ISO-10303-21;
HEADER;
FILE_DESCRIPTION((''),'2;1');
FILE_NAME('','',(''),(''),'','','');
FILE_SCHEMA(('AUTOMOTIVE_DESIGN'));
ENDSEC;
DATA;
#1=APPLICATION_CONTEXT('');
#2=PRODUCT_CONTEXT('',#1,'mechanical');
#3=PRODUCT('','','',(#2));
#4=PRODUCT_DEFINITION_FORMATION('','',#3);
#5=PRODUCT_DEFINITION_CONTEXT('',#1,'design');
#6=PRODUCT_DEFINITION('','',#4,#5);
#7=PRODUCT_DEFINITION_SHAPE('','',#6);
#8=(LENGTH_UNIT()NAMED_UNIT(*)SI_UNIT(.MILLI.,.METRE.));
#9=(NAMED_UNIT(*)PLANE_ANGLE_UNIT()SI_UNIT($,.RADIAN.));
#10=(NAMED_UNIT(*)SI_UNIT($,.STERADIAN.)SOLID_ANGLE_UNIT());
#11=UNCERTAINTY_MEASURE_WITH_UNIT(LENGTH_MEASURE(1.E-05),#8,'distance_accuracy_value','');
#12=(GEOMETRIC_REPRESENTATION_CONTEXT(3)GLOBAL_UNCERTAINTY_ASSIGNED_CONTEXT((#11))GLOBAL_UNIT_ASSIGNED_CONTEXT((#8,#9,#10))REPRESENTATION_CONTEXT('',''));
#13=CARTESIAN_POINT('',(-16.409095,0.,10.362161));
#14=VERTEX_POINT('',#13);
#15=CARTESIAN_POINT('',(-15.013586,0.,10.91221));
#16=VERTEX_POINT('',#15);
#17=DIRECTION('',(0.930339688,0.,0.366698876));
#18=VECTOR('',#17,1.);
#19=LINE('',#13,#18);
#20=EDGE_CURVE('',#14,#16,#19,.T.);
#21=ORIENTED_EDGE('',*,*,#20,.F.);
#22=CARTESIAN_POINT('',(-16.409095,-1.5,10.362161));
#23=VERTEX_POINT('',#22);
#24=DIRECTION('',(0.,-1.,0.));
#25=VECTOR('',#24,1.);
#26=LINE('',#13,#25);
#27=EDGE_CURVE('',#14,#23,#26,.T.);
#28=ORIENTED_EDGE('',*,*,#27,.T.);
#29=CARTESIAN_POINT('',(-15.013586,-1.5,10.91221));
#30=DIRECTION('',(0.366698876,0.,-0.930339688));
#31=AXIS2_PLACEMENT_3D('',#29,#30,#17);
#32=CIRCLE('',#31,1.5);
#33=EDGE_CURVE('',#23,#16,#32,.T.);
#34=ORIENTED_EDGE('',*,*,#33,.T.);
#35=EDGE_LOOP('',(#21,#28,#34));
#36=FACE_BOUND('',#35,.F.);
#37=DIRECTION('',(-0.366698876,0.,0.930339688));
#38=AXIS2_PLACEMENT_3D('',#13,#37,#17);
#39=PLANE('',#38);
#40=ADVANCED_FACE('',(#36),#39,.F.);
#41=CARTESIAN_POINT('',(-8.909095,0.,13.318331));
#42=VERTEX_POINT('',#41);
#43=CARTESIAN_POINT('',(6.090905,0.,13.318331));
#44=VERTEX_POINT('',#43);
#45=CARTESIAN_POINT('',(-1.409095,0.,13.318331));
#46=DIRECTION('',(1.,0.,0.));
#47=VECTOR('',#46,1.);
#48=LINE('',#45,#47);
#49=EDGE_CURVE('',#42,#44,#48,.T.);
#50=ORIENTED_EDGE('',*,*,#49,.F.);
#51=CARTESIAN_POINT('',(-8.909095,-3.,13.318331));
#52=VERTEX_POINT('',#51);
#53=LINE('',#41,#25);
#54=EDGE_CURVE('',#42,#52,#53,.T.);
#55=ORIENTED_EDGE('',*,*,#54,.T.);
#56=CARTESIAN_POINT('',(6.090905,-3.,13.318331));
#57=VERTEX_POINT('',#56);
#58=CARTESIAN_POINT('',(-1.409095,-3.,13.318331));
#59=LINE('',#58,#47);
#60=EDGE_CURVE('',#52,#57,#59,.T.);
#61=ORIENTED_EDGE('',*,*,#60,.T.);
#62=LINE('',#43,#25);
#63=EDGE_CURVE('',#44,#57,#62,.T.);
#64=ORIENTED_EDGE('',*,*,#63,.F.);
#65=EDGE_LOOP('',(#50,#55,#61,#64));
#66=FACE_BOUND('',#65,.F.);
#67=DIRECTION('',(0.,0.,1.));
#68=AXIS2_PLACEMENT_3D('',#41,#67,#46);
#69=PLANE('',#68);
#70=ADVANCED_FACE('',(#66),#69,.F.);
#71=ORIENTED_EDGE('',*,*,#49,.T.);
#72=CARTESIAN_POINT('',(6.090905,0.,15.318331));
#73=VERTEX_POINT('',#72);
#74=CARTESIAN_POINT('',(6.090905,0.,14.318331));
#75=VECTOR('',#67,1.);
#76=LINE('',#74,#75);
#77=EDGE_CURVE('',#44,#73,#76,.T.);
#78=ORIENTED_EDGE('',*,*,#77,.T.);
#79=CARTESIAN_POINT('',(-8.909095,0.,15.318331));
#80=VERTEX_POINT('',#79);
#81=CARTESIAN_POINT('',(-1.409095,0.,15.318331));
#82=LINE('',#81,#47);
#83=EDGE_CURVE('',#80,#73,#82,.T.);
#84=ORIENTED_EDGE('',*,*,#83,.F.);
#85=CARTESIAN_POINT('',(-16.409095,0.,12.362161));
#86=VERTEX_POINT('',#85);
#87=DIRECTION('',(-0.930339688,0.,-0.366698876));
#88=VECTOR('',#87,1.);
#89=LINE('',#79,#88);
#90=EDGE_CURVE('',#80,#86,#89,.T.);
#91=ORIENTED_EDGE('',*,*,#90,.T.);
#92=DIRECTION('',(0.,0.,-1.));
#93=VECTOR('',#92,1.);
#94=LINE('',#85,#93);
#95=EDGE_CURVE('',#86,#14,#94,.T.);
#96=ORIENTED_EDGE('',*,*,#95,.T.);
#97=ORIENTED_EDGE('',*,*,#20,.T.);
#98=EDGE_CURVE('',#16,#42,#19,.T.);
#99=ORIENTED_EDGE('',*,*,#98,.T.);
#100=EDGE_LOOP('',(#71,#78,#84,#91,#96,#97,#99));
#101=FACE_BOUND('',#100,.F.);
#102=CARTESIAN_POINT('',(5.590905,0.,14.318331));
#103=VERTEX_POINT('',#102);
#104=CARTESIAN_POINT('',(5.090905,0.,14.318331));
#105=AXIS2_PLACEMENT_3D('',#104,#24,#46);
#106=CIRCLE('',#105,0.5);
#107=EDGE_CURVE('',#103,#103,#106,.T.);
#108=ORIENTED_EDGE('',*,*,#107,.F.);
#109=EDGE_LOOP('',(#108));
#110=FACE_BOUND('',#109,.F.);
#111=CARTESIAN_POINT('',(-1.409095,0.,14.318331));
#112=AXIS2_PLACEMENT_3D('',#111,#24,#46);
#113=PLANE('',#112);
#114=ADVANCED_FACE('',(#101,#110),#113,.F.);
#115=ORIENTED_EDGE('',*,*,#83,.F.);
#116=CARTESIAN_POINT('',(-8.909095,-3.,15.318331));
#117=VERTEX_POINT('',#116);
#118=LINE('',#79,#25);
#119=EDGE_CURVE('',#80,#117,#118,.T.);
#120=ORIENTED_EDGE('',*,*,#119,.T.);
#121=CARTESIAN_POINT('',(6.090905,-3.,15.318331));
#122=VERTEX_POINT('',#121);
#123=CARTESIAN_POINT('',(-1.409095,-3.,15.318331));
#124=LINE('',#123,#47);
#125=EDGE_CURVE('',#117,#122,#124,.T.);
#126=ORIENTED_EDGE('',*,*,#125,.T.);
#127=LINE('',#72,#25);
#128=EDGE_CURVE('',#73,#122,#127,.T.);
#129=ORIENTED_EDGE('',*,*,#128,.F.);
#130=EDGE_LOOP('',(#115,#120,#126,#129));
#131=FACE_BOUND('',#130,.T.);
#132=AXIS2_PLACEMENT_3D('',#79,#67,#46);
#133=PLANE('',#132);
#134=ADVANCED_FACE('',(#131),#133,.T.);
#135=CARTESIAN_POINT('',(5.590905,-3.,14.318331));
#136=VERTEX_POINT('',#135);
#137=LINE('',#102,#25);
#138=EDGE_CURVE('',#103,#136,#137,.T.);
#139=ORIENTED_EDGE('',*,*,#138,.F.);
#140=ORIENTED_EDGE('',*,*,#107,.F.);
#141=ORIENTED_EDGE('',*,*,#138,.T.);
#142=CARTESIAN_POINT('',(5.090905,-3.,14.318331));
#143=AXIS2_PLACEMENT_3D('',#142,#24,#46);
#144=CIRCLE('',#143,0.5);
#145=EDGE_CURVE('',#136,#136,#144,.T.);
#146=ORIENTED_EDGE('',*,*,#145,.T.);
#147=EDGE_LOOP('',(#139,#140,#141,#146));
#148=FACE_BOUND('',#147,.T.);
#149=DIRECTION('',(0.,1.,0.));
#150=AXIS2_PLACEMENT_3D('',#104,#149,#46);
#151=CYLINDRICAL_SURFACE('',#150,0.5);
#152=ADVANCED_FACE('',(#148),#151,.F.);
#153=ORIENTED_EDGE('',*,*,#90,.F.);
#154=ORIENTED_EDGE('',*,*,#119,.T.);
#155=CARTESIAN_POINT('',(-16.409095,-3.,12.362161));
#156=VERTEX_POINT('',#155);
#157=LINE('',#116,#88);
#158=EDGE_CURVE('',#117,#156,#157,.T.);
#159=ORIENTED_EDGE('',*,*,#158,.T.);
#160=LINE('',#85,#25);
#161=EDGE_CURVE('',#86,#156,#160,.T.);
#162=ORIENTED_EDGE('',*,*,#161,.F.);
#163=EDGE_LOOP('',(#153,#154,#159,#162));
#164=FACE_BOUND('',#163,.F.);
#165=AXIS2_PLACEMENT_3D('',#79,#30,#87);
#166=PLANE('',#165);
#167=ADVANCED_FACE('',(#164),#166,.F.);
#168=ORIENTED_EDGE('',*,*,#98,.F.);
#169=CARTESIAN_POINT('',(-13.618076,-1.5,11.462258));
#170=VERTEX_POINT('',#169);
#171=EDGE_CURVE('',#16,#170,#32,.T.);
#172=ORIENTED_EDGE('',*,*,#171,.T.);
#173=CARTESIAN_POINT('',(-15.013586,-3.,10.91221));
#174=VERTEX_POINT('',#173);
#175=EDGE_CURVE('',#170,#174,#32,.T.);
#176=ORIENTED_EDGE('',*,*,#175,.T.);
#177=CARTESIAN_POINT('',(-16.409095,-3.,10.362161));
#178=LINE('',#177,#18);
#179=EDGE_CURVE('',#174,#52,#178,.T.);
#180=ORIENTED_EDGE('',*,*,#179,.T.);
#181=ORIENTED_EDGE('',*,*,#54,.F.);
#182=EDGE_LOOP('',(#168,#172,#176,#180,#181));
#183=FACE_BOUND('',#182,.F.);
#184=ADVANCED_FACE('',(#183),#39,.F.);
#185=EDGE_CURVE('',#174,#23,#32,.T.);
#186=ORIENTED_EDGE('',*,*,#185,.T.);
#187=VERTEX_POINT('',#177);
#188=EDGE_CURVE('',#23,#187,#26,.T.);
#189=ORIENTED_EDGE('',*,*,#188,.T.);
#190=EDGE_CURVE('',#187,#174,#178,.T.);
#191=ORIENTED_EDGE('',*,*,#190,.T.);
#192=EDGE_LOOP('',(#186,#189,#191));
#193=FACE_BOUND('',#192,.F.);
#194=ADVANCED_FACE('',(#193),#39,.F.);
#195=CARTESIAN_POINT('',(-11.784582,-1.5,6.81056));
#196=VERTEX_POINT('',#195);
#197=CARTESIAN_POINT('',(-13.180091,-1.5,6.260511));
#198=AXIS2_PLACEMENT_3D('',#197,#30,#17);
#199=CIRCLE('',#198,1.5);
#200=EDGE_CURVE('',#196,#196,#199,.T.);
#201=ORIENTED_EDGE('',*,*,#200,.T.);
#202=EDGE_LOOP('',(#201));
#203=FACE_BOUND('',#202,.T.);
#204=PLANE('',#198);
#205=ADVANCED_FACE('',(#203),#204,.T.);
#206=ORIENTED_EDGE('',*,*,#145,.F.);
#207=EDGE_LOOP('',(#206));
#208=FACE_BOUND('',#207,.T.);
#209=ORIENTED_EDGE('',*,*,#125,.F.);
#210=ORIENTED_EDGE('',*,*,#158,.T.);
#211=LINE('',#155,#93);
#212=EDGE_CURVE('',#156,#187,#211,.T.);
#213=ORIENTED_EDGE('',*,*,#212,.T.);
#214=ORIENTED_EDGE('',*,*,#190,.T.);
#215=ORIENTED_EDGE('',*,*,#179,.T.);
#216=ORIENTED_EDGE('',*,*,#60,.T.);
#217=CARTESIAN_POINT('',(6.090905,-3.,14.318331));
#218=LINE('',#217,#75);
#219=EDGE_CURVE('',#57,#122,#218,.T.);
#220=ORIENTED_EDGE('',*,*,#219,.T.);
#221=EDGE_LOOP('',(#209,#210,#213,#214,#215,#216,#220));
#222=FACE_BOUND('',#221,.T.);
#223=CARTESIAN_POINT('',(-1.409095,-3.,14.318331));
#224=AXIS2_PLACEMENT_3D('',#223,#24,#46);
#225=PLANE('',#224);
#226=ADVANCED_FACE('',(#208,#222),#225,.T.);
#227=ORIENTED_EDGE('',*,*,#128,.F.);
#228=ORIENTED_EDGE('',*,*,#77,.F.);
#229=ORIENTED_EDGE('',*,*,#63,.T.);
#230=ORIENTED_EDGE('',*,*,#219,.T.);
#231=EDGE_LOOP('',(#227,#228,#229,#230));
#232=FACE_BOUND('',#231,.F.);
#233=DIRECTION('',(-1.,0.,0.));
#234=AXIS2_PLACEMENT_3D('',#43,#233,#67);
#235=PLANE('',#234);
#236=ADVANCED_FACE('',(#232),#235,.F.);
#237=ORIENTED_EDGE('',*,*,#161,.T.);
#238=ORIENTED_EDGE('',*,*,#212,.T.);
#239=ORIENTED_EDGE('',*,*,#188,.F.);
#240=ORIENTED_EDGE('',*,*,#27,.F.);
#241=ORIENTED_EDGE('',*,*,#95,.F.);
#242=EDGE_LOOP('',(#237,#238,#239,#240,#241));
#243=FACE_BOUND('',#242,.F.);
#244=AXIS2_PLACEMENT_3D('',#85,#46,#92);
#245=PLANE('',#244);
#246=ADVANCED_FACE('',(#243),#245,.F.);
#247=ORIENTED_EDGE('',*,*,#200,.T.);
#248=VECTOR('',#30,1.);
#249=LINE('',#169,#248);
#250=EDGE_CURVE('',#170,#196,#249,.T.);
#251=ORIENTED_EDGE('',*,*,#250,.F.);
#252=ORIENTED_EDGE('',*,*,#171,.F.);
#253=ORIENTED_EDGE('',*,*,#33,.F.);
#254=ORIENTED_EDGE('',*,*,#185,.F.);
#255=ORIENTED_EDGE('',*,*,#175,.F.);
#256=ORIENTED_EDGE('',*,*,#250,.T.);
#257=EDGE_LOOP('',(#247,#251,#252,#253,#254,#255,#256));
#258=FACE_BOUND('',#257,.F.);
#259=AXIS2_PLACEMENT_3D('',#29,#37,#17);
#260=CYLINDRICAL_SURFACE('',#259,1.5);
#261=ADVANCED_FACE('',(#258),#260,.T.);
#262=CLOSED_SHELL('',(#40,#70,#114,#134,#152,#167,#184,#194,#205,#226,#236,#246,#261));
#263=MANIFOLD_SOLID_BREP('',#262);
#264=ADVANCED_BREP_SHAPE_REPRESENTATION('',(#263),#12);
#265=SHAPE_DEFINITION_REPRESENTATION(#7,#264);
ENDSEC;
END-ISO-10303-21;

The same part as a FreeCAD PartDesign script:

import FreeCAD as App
import Part
import Sketcher
from FreeCAD import Vector
Q = App.Units.Quantity

doc = App.newDocument("Part")
body = doc.addObject("PartDesign::Body", "Body")

# Sketch on XZ plane
sketch1 = doc.addObject("Sketcher::SketchObject", "Sketch")
body.addObject(sketch1)
sketch1.AttachmentSupport = (doc.XZ_Plane, [""])
sketch1.MapMode = "FlatFace"
sketch1.addGeometry(Part.LineSegment(Vector(-8.909095, 13.318331, 0), Vector(6.090905, 13.318331, 0)), False)
sketch1.addGeometry(Part.LineSegment(Vector(6.090905, 13.318331, 0), Vector(6.090905, 15.318331, 0)), False)
sketch1.addGeometry(Part.LineSegment(Vector(6.090905, 15.318331, 0), Vector(-8.909095, 15.318331, 0)), False)
sketch1.addGeometry(Part.LineSegment(Vector(-8.909095, 15.318331, 0), Vector(-16.409095, 12.362161, 0)), False)
sketch1.addGeometry(Part.LineSegment(Vector(-16.409095, 12.362161, 0), Vector(-16.409095, 10.362161, 0)), False)
sketch1.addGeometry(Part.LineSegment(Vector(-16.409095, 10.362161, 0), Vector(-8.909095, 13.318331, 0)), False)
sketch1.addGeometry(Part.Circle(Vector(5.090905, 14.318331, 0), Vector(0, 0, 1), 0.5), False)
sketch1.addConstraint(Sketcher.Constraint("Coincident", 0, 2, 1, 1))
sketch1.addConstraint(Sketcher.Constraint("Coincident", 1, 2, 2, 1))
sketch1.addConstraint(Sketcher.Constraint("Coincident", 2, 2, 3, 1))
sketch1.addConstraint(Sketcher.Constraint("Coincident", 3, 2, 4, 1))
sketch1.addConstraint(Sketcher.Constraint("Coincident", 4, 2, 5, 1))
sketch1.addConstraint(Sketcher.Constraint("Coincident", 5, 2, 0, 1))
sketch1.addConstraint(Sketcher.Constraint("Horizontal", 0))
sketch1.addConstraint(Sketcher.Constraint("Vertical", 1))
sketch1.addConstraint(Sketcher.Constraint("Horizontal", 2))
sketch1.addConstraint(Sketcher.Constraint("Vertical", 4))
sketch1.addConstraint(Sketcher.Constraint("Parallel", 3, 5))
sketch1.addConstraint(Sketcher.Constraint("Vertical", 2, 2, 5, 2))
sketch1.addConstraint(Sketcher.Constraint("Diameter", 6, Q("1 mm")))
sketch1.addConstraint(Sketcher.Constraint("DistanceX", 0, 1, 0, 2, Q("15 mm")))
sketch1.addConstraint(Sketcher.Constraint("DistanceY", 1, 1, 1, 2, Q("2 mm")))
sketch1.addConstraint(Sketcher.Constraint("DistanceX", 6, 3, 0, 2, Q("1 mm")))
sketch1.addConstraint(Sketcher.Constraint("DistanceY", 0, 2, 6, 3, Q("1 mm")))
sketch1.addConstraint(Sketcher.Constraint("DistanceX", 3, 2, 2, 2, Q("7.5 mm")))
sketch1.addConstraint(Sketcher.Constraint("Distance", 3, Q("8.061572 mm")))
sketch1.addConstraint(Sketcher.Constraint("DistanceY", -1, 1, 6, 3, Q("14.318331 mm")))
sketch1.addConstraint(Sketcher.Constraint("DistanceX", -1, 1, 6, 3, Q("5.090905 mm")))
pad1 = doc.addObject("PartDesign::Pad", "Pad")
body.addObject(pad1)
pad1.Profile = sketch1
pad1.Length = 3

# Sketch on an angled plane
sketch2 = doc.addObject("Sketcher::SketchObject", "Sketch001")
body.addObject(sketch2)
sketch2.Placement = App.Placement(Vector(-5.741597, 0, 14.566819), App.Rotation(Vector(0.930339688, 0, 0.366698876), Vector(0, -1.000000001, 0), Vector(0.366698876, 0, -0.930339688), "ZXY"))
sketch2.addGeometry(Part.Circle(Vector(-9.96624, 1.5, 0), Vector(0, 0, 1), 1.5), False)
sketch2.addConstraint(Sketcher.Constraint("Diameter", 0, Q("3 mm")))
sketch2.addConstraint(Sketcher.Constraint("DistanceY", -1, 1, 0, 3, Q("1.5 mm")))
sketch2.addConstraint(Sketcher.Constraint("DistanceX", 0, 3, -1, 1, Q("9.96624 mm")))
pad2 = doc.addObject("PartDesign::Pad", "Pad001")
body.addObject(pad2)
pad2.Profile = sketch2
pad2.Length = 5

doc.recompute()
